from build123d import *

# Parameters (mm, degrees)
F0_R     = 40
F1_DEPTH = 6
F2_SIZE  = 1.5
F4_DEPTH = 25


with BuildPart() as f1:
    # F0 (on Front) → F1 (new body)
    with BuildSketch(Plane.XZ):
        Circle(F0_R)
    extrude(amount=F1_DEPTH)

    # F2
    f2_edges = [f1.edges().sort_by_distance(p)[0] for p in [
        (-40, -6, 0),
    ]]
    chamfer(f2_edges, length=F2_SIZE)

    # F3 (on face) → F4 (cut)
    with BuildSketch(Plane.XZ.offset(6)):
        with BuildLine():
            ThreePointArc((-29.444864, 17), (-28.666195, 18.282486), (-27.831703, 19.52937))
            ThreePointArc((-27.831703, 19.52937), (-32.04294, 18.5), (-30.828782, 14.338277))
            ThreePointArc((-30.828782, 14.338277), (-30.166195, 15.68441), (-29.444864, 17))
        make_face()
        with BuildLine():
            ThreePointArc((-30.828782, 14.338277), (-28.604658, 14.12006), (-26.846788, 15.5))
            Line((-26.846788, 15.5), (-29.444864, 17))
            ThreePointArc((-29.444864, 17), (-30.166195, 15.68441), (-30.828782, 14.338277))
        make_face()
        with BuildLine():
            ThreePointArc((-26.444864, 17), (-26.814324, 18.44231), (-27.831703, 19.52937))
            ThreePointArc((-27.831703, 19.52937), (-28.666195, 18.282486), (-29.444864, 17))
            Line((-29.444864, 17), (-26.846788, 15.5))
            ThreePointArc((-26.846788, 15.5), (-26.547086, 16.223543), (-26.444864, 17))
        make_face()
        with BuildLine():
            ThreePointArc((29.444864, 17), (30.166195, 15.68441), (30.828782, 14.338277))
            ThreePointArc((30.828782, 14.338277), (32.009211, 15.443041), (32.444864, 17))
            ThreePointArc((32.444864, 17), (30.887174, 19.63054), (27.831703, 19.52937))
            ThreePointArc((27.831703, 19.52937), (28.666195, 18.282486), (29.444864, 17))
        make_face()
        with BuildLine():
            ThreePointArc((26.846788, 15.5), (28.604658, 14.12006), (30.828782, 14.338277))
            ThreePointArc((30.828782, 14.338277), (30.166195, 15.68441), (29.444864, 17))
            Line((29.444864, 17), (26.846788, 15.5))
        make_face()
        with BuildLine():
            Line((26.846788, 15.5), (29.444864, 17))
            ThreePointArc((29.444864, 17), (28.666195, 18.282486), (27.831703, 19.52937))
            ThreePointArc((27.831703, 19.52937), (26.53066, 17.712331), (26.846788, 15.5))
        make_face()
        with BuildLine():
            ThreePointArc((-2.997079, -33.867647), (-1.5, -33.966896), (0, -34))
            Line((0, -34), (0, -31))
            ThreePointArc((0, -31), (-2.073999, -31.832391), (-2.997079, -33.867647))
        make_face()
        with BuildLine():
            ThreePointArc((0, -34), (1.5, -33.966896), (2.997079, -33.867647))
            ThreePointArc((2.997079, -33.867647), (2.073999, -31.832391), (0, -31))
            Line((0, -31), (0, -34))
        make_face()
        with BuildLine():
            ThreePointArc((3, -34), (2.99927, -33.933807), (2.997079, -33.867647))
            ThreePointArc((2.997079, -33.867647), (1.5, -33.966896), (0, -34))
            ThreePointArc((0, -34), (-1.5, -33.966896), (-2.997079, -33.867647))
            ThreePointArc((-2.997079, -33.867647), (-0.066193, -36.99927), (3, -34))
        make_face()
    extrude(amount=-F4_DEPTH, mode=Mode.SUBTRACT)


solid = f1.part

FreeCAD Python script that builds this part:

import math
import FreeCAD as App
import Part
import Sketcher


def edges_at(feature, points):
    """Names of the edges that pass closest to the given points."""
    edges = feature.Shape.Edges
    near = lambda p: min(range(len(edges)), key=lambda i: edges[i].distToShape(Part.Vertex(*p))[0])
    return sorted({f"Edge{near(p) + 1}" for p in points})

doc = App.newDocument("Part")
body = doc.addObject("PartDesign::Body", "Body")

# Sketch on XZ plane
sketch1 = body.newObject("Sketcher::SketchObject", "Sketch")
sketch1.AttachmentSupport = (doc.getObject("XZ_Plane"), [""])
sketch1.MapMode = "FlatFace"
sketch1.addGeometry(Part.Circle(App.Vector(0, 0, 0), App.Vector(0, 0, 1), 40), False)
sketch1.addConstraint([
    Sketcher.Constraint("Coincident", 0, 3, -1, 1),
    Sketcher.Constraint("Diameter", 0, 80.0),
])
pad1 = body.newObject("PartDesign::Pad", "Pad")
pad1.Profile = sketch1
pad1.Length = 6
doc.recompute()

chamfer = body.newObject("PartDesign::Chamfer", "Chamfer")
chamfer.Base = (pad1, edges_at(pad1, [(-40, -6, 0)]))
chamfer.Size = 1.5

# Sketch on XZ plane
sketch2 = body.newObject("Sketcher::SketchObject", "Sketch001")
sketch2.AttachmentSupport = (doc.getObject("XZ_Plane"), [""])
sketch2.MapMode = "FlatFace"
sketch2.AttachmentOffset = App.Placement(App.Vector(0, 0, 6), App.Rotation())
sketch2.addGeometry([
    Part.ArcOfCircle(Part.Circle(App.Vector(-29.444864, 17, 0), App.Vector(0, 0, 1), 3), math.radians(57.471418), math.radians(242.528581)),  # 0
    Part.ArcOfCircle(Part.Circle(App.Vector(-29.444864, 16.999999, 0), App.Vector(0, 0, 1), 2.999999), math.radians(-117.471432), math.radians(-29.999988)),  # 1
    Part.ArcOfCircle(Part.Circle(App.Vector(-29.444848, 16.999996, 0), App.Vector(0, 0, 1), 2.999984), math.radians(-30.00009), math.radians(0.000075)),  # 2
    Part.ArcOfCircle(Part.Circle(App.Vector(-29.444866, 16.999999, 0), App.Vector(0, 0, 1), 3.000002), math.radians(0.000018), math.radians(57.471392)),  # 3
    Part.ArcOfCircle(Part.Circle(App.Vector(29.444862, 17.000002, 0), App.Vector(0, 0, 1), 3.000002), math.radians(-62.528562), math.radians(-0.000031)),  # 4
    Part.ArcOfCircle(Part.Circle(App.Vector(29.444864, 17, 0), App.Vector(0, 0, 1), 3), math.radians(0.000008), math.radians(122.528575)),  # 5
    Part.ArcOfCircle(Part.Circle(App.Vector(29.444864, 17, 0), App.Vector(0, 0, 1), 3), math.radians(122.528584), math.radians(210.000009)),  # 6
    Part.ArcOfCircle(Part.Circle(App.Vector(29.444864, 16.999999, 0), App.Vector(0, 0, 1), 2.999999), math.radians(-150.000012), math.radians(-62.528568)),  # 7
    Part.ArcOfCircle(Part.Circle(App.Vector(0, -34, 0), App.Vector(0, 0, 1), 3), math.radians(2.528571), math.radians(90.000005)),  # 8
    Part.ArcOfCircle(Part.Circle(App.Vector(0, -34, 0), App.Vector(0, 0, 1), 3), math.radians(89.999995), math.radians(177.471429)),  # 9
    Part.ArcOfCircle(Part.Circle(App.Vector(0, -34, 0), App.Vector(0, 0, 1), 3), math.radians(177.471417), math.radians(360.000007)),  # 10
    Part.ArcOfCircle(Part.Circle(App.Vector(0.001452, -33.999969, 0), App.Vector(0, 0, 1), 2.998548), math.radians(-0.000601), math.radians(2.5292)),  # 11
], False)
sketch2.addConstraint([
    Sketcher.Constraint("Tangent", 0, 2, 1, 1),
    Sketcher.Constraint("Tangent", 1, 2, 2, 1),
    Sketcher.Constraint("Tangent", 2, 2, 3, 1),
    Sketcher.Constraint("Tangent", 3, 2, 0, 1),
    Sketcher.Constraint("Tangent", 4, 2, 5, 1),
    Sketcher.Constraint("Tangent", 5, 2, 6, 1),
    Sketcher.Constraint("Tangent", 6, 2, 7, 1),
    Sketcher.Constraint("Tangent", 7, 2, 4, 1),
    Sketcher.Constraint("Tangent", 8, 2, 9, 1),
    Sketcher.Constraint("Tangent", 9, 2, 10, 1),
    Sketcher.Constraint("Coincident", 10, 2, 11, 1),
    Sketcher.Constraint("Coincident", 11, 2, 8, 1),
    Sketcher.Constraint("Coincident", 10, 3, 8, 3),
    Sketcher.Constraint("Equal", 0, 1),
    Sketcher.Constraint("Equal", 3, 4),
    Sketcher.Constraint("Equal", 4, 5),
    Sketcher.Constraint("Equal", 7, 8),
    Sketcher.Constraint("Symmetric", 0, 3, 4, 3, -2),
    Sketcher.Constraint("Symmetric", 9, 2, 11, 2, -2),
    Sketcher.Constraint("PointOnObject", 8, 2, -2),
    Sketcher.Constraint("Horizontal", 7, 3, 2, 2),
    Sketcher.Constraint("Horizontal", 2, 2, 4, 2),
    Sketcher.Constraint("Horizontal", 3, 2, 5, 2),
    Sketcher.Constraint("Horizontal", 1, 2, 6, 2),
    Sketcher.Constraint("Horizontal", 0, 2, 7, 2),
    Sketcher.Constraint("Horizontal", 9, 3, 10, 2),
    Sketcher.Constraint("Radius", 0, 3.0),
    Sketcher.Constraint("DistanceY", -1, 1, 0, 3, 17.0),
    Sketcher.Constraint("DistanceY", 8, 3, -1, 1, 34.0),
    Sketcher.Constraint("DistanceY", -1, 1, 1, 2, 15.5),
    Sketcher.Constraint("Radius", 11, 2.998548),
    Sketcher.Constraint("DistanceX", 2, 3, -1, 1, 29.444848),
    Sketcher.Constraint("DistanceX", 0, 2, -1, 1, 30.828782),
    Sketcher.Constraint("DistanceY", -1, 1, 3, 2, 19.52937),
    Sketcher.Constraint("DistanceX", 9, 2, -1, 1, 2.997079),
])
pocket1 = body.newObject("PartDesign::Pocket", "Pocket")
pocket1.Profile = sketch2
pocket1.Length = 25

doc.recompute()
